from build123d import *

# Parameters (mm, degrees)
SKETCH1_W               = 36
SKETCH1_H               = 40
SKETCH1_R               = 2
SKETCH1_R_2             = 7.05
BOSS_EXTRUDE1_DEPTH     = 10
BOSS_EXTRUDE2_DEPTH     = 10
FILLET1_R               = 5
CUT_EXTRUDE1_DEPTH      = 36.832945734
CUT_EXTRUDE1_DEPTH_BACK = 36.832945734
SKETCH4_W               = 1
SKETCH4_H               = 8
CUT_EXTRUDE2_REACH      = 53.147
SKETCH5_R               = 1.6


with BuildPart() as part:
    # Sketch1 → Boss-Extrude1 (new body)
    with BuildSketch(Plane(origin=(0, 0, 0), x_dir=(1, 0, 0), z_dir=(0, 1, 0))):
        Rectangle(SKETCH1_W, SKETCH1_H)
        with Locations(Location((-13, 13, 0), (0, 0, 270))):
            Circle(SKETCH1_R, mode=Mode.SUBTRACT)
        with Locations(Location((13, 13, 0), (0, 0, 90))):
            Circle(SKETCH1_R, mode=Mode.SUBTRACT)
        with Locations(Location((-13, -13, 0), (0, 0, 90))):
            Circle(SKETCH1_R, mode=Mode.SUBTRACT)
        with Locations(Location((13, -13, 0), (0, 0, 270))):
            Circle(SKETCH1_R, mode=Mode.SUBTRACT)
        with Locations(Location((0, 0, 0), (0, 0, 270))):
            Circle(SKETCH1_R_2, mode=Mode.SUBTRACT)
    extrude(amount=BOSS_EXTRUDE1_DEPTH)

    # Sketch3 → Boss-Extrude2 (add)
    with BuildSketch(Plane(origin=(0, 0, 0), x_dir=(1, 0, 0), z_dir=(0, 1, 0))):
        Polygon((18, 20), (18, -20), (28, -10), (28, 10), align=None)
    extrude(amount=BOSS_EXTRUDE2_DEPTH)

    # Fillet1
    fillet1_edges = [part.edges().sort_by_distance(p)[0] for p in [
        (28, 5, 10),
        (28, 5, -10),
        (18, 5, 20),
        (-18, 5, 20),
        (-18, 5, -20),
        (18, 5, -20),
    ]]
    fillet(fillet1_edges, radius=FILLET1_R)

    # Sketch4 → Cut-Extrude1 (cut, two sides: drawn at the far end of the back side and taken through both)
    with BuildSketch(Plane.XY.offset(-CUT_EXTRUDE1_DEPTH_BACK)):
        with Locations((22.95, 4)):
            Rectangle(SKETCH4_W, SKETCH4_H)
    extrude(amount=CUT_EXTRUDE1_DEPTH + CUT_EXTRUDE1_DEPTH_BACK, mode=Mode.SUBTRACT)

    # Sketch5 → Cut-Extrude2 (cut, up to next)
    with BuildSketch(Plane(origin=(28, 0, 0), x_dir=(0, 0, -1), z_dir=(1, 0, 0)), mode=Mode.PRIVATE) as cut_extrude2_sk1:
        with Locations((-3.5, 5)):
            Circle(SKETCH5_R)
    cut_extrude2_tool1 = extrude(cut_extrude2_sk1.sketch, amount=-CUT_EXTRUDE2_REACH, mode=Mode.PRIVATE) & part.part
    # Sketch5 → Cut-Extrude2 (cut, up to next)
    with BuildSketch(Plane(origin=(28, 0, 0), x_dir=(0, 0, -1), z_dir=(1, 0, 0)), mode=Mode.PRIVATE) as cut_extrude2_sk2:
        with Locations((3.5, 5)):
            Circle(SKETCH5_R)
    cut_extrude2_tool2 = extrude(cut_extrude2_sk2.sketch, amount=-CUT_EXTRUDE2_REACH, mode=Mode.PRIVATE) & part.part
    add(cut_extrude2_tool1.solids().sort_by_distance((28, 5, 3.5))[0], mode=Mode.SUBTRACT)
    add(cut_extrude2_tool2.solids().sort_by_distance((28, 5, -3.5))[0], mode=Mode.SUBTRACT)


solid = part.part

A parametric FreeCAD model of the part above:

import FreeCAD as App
import Part
import Sketcher
from FreeCAD import Vector
Q = App.Units.Quantity


def edges_at(feature, points):
    """Names of the edges that pass closest to the given points."""
    edges = feature.Shape.Edges
    near = lambda p: min(range(len(edges)), key=lambda i: edges[i].distToShape(Part.Vertex(*p))[0])
    return sorted({f"Edge{near(p) + 1}" for p in points})

doc = App.newDocument("Part")
body = doc.addObject("PartDesign::Body", "Body")

sketch1 = body.newObject("Sketcher::SketchObject", "Sketch")
sketch1.AttachmentSupport = (doc.getObject("XZ_Plane"), [""])
sketch1.MapMode = "FlatFace"
sketch1.addGeometry(Part.LineSegment(Vector(-18, -20, 0), Vector(-18, 20, 0)), False)
sketch1.addGeometry(Part.LineSegment(Vector(-18, 20, 0), Vector(18, 20, 0)), False)
sketch1.addGeometry(Part.LineSegment(Vector(18, 20, 0), Vector(18, -20, 0)), False)
sketch1.addGeometry(Part.LineSegment(Vector(18, -20, 0), Vector(-18, -20, 0)), False)
sketch1.addGeometry(Part.Circle(Vector(-13, 13, 0), Vector(0, 0, 1), 2), False)
sketch1.addGeometry(Part.Circle(Vector(13, 13, 0), Vector(0, 0, 1), 2), False)
sketch1.addGeometry(Part.Circle(Vector(-13, -13, 0), Vector(0, 0, 1), 2), False)
sketch1.addGeometry(Part.Circle(Vector(0, 0, 0), Vector(0, 0, 1), 7), False)
sketch1.addGeometry(Part.Circle(Vector(13, -13, 0), Vector(0, 0, 1), 2), False)
sketch1.addConstraint(Sketcher.Constraint("Coincident", 0, 2, 1, 1))
sketch1.addConstraint(Sketcher.Constraint("Coincident", 1, 2, 2, 1))
sketch1.addConstraint(Sketcher.Constraint("Coincident", 2, 2, 3, 1))
sketch1.addConstraint(Sketcher.Constraint("Coincident", 3, 2, 0, 1))
sketch1.addConstraint(Sketcher.Constraint("Vertical", 0))
sketch1.addConstraint(Sketcher.Constraint("Horizontal", 1))
sketch1.addConstraint(Sketcher.Constraint("Vertical", 2))
sketch1.addConstraint(Sketcher.Constraint("Horizontal", 3))
sketch1.addConstraint(Sketcher.Constraint("Coincident", 7, 3, -1, 1))
sketch1.addConstraint(Sketcher.Constraint("Equal", 4, 5))
sketch1.addConstraint(Sketcher.Constraint("Equal", 5, 6))
sketch1.addConstraint(Sketcher.Constraint("Equal", 6, 8))
sketch1.addConstraint(Sketcher.Constraint("Symmetric", 5, 3, 6, 3, -1, 1))
sketch1.addConstraint(Sketcher.Constraint("Symmetric", 4, 3, 8, 3, -1, 1))
sketch1.addConstraint(Sketcher.Constraint("Symmetric", 0, 2, 2, 2, -1, 1))
sketch1.addConstraint(Sketcher.Constraint("Symmetric", 4, 3, 5, 3, -2))
sketch1.addConstraint(Sketcher.Constraint("Diameter", 4, Q("4 mm")))
sketch1.addConstraint(Sketcher.Constraint("Diameter", 7, Q("14.1 mm")))
sketch1.addConstraint(Sketcher.Constraint("DistanceX", 1, 1, 1, 2, Q("36 mm")))
sketch1.addConstraint(Sketcher.Constraint("DistanceY", 0, 1, 0, 2, Q("40 mm")))
sketch1.addConstraint(Sketcher.Constraint("DistanceX", 4, 3, -1, 1, Q("13 mm")))
sketch1.addConstraint(Sketcher.Constraint("DistanceY", -1, 1, 4, 3, Q("13 mm")))
pad1 = body.newObject("PartDesign::Pad", "Pad")
pad1.Profile = sketch1
pad1.Length = 10
pad1.Reversed = True

sketch2 = body.newObject("Sketcher::SketchObject", "Sketch001")
sketch2.AttachmentSupport = (doc.getObject("XZ_Plane"), [""])
sketch2.MapMode = "FlatFace"
sketch2.addGeometry(Part.LineSegment(Vector(18, -20, 0), Vector(18, 20, 0)), False)
sketch2.addGeometry(Part.LineSegment(Vector(18, 20, 0), Vector(28, 10, 0)), False)
sketch2.addGeometry(Part.LineSegment(Vector(28, 10, 0), Vector(28, -10, 0)), False)
sketch2.addGeometry(Part.LineSegment(Vector(28, -10, 0), Vector(18, -20, 0)), False)
sketch2.addConstraint(Sketcher.Constraint("Coincident", 0, 2, 1, 1))
sketch2.addConstraint(Sketcher.Constraint("Coincident", 1, 2, 2, 1))
sketch2.addConstraint(Sketcher.Constraint("Coincident", 2, 2, 3, 1))
sketch2.addConstraint(Sketcher.Constraint("Coincident", 3, 2, 0, 1))
sketch2.addConstraint(Sketcher.Constraint("Vertical", 0))
sketch2.addConstraint(Sketcher.Constraint("Vertical", 2))
sketch2.addConstraint(Sketcher.Constraint("Perpendicular", 1, 3))
sketch2.addConstraint(Sketcher.Constraint("Equal", 1, 3))
sketch2.addConstraint(Sketcher.Constraint("DistanceY", 0, 1, 0, 2, Q("40 mm")))
sketch2.addConstraint(Sketcher.Constraint("DistanceY", 2, 2, 2, 1, Q("20 mm")))
sketch2.addConstraint(Sketcher.Constraint("DistanceX", -1, 1, 0, 2, Q("18 mm")))
sketch2.addConstraint(Sketcher.Constraint("DistanceY", -1, 1, 0, 2, Q("20 mm")))
pad2 = body.newObject("PartDesign::Pad", "Pad001")
pad2.Profile = sketch2
pad2.Length = 10
pad2.Reversed = True
doc.recompute()

fillet = body.newObject("PartDesign::Fillet", "Fillet")
fillet.Base = (pad2, edges_at(pad2, [
    (28, 5, 10),
    (28, 5, -10),
    (18, 5, 20),
    (-18, 5, 20),
    (-18, 5, -20),
    (18, 5, -20),
]))
fillet.Radius = 5

sketch3 = body.newObject("Sketcher::SketchObject", "Sketch002")
sketch3.AttachmentSupport = (doc.getObject("XY_Plane"), [""])
sketch3.MapMode = "FlatFace"
sketch3.addGeometry(Part.LineSegment(Vector(22.4, 8, 0), Vector(22.4, 0, 0)), False)
sketch3.addGeometry(Part.LineSegment(Vector(22.4, 0, 0), Vector(23.4, 0, 0)), False)
sketch3.addGeometry(Part.LineSegment(Vector(23.4, 0, 0), Vector(23.4, 8, 0)), False)
sketch3.addGeometry(Part.LineSegment(Vector(23.4, 8, 0), Vector(22.4, 8, 0)), False)
sketch3.addConstraint(Sketcher.Constraint("Coincident", 0, 2, 1, 1))
sketch3.addConstraint(Sketcher.Constraint("Coincident", 1, 2, 2, 1))
sketch3.addConstraint(Sketcher.Constraint("Coincident", 2, 2, 3, 1))
sketch3.addConstraint(Sketcher.Constraint("Coincident", 3, 2, 0, 1))
sketch3.addConstraint(Sketcher.Constraint("Vertical", 0))
sketch3.addConstraint(Sketcher.Constraint("Horizontal", 1))
sketch3.addConstraint(Sketcher.Constraint("Vertical", 2))
sketch3.addConstraint(Sketcher.Constraint("Horizontal", 3))
sketch3.addConstraint(Sketcher.Constraint("PointOnObject", 0, 2, -1))
sketch3.addConstraint(Sketcher.Constraint("DistanceX", 1, 1, 1, 2, Q("1 mm")))
sketch3.addConstraint(Sketcher.Constraint("DistanceY", 0, 2, 0, 1, Q("8 mm")))
sketch3.addConstraint(Sketcher.Constraint("DistanceX", -1, 1, 0, 2, Q("22.45 mm")))
pocket1 = body.newObject("PartDesign::Pocket", "Pocket")
pocket1.Profile = sketch3
pocket1.Type = "ThroughAll"
pocket1.Midplane = True

sketch4 = body.newObject("Sketcher::SketchObject", "Sketch003")
sketch4.AttachmentSupport = (doc.getObject("YZ_Plane"), [""])
sketch4.MapMode = "FlatFace"
sketch4.AttachmentOffset = App.Placement(Vector(0, 0, 28), App.Rotation())
sketch4.addGeometry(Part.Circle(Vector(5, 3.5, 0), Vector(0, 0, 1), 1.6), False)
sketch4.addConstraint(Sketcher.Constraint("Diameter", 0, Q("3.2 mm")))
sketch4.addConstraint(Sketcher.Constraint("DistanceX", -1, 1, 0, 3, Q("5 mm")))
sketch4.addConstraint(Sketcher.Constraint("DistanceY", -1, 1, 0, 3, Q("3.5 mm")))
pocket2 = body.newObject("PartDesign::Pocket", "Pocket001")
pocket2.Profile = sketch4
pocket2.Type = "UpToFirst"

sketch5 = body.newObject("Sketcher::SketchObject", "Sketch004")
sketch5.AttachmentSupport = (doc.getObject("YZ_Plane"), [""])
sketch5.MapMode = "FlatFace"
sketch5.AttachmentOffset = App.Placement(Vector(0, 0, 28), App.Rotation())
sketch5.addGeometry(Part.Circle(Vector(5, -3.5, 0), Vector(0, 0, 1), 1.6), False)
sketch5.addConstraint(Sketcher.Constraint("Diameter", 0, Q("3.2 mm")))
sketch5.addConstraint(Sketcher.Constraint("DistanceX", -1, 1, 0, 3, Q("5 mm")))
sketch5.addConstraint(Sketcher.Constraint("DistanceY", 0, 3, -1, 1, Q("3.5 mm")))
pocket3 = body.newObject("PartDesign::Pocket", "Pocket002")
pocket3.Profile = sketch5
pocket3.Type = "UpToFirst"

doc.recompute()
